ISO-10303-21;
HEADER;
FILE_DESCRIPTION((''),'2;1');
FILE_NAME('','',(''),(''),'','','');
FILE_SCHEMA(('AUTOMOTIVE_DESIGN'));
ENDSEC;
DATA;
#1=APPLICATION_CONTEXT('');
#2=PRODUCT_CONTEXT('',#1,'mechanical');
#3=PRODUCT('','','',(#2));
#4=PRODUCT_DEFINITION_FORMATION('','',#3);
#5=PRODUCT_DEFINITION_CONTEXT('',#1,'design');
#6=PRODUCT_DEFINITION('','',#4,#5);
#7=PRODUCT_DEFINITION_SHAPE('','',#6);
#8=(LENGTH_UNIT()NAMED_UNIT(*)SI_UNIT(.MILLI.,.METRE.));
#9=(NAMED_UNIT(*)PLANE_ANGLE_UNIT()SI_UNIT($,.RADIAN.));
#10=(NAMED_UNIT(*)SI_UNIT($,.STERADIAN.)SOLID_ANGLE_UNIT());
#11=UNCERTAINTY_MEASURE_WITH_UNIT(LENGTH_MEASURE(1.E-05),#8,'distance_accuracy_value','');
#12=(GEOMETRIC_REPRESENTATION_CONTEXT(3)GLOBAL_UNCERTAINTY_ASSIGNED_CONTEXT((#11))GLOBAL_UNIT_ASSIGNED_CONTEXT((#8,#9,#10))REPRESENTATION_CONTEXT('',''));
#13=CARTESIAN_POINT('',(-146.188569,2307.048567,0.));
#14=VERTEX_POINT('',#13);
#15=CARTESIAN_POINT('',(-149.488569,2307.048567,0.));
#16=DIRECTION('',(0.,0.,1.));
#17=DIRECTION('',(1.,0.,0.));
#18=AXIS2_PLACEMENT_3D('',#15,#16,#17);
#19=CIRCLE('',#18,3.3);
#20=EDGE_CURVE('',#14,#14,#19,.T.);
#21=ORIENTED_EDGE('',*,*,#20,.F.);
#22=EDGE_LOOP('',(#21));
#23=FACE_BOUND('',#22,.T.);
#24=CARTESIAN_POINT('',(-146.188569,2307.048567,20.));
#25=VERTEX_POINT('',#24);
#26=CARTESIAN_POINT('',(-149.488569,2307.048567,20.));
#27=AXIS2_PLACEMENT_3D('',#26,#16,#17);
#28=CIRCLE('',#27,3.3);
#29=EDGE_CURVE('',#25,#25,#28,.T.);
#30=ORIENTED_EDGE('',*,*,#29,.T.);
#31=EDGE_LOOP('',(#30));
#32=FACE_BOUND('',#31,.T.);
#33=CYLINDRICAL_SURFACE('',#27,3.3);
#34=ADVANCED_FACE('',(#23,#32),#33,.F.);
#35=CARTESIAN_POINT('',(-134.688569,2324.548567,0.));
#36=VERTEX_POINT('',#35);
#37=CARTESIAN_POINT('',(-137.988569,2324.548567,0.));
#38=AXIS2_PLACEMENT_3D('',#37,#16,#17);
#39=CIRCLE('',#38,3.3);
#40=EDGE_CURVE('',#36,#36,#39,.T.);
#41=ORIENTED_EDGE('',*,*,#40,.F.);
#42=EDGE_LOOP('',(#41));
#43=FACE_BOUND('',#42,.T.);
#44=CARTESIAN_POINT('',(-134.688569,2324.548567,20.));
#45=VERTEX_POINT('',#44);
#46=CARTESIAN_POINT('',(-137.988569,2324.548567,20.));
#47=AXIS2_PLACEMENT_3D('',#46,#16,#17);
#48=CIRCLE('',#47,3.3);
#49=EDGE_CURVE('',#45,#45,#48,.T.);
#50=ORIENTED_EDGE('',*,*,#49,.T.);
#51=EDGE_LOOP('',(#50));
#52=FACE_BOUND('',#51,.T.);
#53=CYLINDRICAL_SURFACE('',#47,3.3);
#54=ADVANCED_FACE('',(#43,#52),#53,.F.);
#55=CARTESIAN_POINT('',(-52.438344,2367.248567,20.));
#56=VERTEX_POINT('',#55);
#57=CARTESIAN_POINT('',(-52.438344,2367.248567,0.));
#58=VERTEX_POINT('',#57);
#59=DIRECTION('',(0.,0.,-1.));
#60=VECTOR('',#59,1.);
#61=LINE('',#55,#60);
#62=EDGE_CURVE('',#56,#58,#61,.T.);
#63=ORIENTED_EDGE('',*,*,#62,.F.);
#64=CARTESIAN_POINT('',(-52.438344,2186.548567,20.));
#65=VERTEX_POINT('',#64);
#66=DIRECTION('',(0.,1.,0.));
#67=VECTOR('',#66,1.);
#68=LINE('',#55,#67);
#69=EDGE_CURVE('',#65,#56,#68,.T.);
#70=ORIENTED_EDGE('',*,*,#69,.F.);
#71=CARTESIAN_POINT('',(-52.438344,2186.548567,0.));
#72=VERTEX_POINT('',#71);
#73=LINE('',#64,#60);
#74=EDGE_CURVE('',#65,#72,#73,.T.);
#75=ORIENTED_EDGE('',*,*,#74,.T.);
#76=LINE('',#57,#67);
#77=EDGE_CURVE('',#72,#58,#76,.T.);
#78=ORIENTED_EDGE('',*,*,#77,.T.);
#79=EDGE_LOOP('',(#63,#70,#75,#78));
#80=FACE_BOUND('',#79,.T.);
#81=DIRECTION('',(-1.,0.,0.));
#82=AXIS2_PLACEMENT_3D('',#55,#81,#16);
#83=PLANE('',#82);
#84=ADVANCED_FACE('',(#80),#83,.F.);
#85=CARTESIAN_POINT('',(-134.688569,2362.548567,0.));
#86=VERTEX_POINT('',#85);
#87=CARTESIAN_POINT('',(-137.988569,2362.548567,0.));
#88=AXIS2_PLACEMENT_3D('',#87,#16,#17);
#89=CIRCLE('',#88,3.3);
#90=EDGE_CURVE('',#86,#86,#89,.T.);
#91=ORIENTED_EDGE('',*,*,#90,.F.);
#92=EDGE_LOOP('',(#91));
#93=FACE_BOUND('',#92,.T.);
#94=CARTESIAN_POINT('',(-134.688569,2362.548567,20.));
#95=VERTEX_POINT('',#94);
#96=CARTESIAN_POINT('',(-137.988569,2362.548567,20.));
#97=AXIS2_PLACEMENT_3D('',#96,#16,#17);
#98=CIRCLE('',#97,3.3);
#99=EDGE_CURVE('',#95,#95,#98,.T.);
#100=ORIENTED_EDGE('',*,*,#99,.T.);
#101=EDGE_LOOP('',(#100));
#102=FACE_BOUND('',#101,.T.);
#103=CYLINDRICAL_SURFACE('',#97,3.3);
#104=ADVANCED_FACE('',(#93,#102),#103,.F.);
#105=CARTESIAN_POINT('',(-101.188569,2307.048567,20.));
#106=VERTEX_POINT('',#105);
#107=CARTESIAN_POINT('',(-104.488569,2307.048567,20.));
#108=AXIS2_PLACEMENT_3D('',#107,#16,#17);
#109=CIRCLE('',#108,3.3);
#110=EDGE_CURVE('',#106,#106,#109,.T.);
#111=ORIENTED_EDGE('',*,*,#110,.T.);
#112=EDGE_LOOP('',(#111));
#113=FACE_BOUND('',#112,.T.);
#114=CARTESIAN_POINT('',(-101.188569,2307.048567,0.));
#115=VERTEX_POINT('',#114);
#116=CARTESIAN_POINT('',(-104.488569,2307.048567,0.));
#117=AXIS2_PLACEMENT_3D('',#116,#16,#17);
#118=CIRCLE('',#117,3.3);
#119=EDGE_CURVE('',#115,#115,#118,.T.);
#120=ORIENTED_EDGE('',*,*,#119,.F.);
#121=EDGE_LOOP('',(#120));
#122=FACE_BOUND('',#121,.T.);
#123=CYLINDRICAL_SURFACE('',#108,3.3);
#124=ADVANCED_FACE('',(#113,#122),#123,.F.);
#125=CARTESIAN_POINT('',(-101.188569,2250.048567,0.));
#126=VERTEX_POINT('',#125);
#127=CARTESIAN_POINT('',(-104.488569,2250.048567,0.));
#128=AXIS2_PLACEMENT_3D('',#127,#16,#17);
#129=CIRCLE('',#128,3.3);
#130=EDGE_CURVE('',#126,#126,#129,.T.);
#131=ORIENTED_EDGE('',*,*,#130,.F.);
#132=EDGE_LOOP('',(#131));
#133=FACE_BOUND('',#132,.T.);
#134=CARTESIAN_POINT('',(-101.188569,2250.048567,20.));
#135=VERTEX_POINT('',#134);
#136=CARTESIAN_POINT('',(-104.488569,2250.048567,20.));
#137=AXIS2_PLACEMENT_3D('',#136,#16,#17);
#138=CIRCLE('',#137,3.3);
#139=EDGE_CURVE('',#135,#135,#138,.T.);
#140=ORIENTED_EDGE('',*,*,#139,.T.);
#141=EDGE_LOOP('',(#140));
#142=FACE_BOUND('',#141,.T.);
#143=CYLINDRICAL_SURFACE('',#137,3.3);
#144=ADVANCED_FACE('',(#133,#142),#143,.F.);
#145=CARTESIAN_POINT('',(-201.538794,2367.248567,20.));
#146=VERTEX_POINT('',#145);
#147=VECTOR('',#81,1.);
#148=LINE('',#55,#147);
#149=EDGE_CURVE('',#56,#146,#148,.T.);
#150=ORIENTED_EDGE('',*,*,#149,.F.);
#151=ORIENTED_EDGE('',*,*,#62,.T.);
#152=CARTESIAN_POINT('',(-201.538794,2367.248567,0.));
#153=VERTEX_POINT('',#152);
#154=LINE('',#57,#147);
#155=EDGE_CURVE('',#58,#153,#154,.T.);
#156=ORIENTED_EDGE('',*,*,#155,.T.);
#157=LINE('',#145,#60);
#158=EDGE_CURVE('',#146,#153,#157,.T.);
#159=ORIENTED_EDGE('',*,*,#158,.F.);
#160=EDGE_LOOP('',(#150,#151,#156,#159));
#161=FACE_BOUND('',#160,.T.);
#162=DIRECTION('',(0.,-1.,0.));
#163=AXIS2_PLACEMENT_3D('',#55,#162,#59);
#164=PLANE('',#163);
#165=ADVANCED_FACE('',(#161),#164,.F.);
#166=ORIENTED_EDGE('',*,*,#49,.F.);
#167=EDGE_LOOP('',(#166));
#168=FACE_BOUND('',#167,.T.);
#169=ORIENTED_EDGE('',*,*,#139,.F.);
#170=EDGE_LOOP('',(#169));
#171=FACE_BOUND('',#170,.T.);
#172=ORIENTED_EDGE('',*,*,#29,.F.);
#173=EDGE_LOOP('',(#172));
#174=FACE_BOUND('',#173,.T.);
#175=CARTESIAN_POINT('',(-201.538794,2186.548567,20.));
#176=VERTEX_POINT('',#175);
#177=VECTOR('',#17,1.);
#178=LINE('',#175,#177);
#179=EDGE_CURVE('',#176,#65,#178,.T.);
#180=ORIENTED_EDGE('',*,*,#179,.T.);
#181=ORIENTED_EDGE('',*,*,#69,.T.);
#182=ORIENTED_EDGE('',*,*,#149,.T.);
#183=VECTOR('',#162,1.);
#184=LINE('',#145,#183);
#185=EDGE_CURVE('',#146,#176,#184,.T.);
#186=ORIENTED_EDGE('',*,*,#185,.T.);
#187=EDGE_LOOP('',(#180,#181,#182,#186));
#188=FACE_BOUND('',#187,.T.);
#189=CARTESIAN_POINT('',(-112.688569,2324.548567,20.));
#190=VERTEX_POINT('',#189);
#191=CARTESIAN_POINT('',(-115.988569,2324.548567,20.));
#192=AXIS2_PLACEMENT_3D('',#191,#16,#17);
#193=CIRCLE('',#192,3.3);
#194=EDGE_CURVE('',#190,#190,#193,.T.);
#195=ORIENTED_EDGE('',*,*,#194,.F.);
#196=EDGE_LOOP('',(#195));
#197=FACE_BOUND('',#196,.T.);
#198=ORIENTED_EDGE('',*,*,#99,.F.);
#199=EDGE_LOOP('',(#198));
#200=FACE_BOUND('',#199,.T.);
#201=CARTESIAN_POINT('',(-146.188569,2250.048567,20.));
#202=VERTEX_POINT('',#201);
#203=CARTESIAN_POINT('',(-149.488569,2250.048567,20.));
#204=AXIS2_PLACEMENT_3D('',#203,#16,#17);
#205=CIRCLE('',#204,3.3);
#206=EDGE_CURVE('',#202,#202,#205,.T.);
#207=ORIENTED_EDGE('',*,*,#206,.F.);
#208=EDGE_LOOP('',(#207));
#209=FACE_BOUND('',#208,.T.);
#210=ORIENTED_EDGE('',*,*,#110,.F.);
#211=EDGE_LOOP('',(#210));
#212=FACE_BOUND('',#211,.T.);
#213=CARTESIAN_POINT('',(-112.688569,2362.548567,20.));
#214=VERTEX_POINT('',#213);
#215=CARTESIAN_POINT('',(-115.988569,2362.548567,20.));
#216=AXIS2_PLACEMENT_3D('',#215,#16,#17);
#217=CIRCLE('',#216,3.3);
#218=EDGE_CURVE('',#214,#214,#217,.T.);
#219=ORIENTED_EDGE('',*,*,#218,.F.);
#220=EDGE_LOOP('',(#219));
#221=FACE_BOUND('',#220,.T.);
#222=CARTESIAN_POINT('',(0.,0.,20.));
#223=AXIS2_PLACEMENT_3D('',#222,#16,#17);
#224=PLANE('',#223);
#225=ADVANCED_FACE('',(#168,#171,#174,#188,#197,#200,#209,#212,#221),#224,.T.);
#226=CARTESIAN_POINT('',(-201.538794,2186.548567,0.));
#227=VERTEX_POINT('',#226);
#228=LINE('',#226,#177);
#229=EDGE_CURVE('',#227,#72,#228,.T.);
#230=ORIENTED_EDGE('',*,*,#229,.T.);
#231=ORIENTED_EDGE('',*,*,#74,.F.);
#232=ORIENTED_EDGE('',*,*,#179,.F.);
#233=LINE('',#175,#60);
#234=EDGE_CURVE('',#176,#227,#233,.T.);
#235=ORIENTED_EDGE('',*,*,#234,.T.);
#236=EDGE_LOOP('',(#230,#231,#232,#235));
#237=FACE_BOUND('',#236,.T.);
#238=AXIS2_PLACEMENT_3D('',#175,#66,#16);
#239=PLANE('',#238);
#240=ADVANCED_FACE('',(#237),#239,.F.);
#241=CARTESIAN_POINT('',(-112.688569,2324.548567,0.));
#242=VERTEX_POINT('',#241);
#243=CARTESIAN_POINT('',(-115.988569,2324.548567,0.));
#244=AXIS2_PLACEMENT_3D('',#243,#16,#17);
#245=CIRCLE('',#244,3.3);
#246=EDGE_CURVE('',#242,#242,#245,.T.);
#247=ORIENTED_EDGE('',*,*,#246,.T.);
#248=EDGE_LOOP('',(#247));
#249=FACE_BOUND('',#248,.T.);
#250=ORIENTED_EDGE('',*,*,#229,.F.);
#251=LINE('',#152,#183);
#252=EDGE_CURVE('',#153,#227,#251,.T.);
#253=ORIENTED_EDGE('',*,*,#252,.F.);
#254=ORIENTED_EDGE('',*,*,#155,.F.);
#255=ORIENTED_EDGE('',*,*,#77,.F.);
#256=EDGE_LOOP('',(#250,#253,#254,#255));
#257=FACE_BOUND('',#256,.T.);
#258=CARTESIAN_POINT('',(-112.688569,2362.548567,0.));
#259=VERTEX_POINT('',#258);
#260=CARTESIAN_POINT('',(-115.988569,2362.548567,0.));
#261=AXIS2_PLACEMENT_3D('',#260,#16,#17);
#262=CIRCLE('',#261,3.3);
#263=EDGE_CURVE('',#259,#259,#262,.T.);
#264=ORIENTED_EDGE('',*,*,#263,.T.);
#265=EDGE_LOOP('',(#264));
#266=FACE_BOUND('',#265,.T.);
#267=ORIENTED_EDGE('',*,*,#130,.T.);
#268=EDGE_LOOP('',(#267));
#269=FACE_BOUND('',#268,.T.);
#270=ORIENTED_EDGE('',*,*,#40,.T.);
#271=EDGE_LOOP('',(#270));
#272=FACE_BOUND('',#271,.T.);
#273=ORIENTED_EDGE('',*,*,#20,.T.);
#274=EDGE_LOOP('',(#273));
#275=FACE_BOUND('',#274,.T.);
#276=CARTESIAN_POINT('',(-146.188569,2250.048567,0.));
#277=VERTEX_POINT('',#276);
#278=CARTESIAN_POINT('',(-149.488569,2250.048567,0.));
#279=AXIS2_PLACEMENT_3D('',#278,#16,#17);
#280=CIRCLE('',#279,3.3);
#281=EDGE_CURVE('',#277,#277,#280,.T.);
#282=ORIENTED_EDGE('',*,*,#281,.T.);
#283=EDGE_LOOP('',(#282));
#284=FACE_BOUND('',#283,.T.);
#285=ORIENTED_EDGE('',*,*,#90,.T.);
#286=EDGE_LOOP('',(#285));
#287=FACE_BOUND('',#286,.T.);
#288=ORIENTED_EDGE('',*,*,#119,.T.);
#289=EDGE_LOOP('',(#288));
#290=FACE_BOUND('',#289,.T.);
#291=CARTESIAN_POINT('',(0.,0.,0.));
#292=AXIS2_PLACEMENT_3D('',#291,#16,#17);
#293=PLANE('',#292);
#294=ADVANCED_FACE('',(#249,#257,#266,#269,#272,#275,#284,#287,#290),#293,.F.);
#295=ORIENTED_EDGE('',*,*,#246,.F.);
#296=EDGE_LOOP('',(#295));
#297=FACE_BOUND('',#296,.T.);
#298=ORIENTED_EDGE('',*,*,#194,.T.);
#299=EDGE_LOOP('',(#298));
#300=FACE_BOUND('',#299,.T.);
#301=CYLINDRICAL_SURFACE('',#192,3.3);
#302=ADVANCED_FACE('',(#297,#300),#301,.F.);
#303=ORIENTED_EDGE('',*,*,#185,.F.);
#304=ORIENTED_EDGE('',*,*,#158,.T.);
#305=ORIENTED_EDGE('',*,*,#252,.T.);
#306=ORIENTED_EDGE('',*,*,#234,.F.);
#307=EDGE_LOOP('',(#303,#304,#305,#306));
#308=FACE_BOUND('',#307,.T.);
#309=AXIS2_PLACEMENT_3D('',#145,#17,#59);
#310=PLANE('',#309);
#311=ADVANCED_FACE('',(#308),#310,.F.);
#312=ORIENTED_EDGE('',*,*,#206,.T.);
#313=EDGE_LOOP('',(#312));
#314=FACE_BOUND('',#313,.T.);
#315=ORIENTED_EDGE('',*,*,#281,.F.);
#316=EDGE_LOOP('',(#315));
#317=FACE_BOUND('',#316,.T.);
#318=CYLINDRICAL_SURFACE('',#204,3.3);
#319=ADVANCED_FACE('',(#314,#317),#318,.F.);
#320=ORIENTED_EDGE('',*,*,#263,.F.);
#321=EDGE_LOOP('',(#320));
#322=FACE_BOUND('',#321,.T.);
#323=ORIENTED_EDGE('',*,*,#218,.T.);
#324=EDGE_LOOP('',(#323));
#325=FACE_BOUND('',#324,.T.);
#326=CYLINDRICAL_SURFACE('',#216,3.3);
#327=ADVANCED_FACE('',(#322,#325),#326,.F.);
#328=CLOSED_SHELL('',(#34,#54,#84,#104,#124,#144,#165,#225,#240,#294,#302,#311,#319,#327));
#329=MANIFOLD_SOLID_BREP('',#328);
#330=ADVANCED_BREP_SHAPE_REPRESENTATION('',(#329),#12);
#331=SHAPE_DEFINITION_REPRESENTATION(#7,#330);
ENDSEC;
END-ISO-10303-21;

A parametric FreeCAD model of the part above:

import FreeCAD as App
import Part
import Sketcher

V = App.Vector
Q = App.Units.Quantity


def add_polygon(sketch, points):
    """Adds a closed chain of lines whose ends are joined by coincident constraints."""
    first, n = sketch.GeometryCount, len(points)
    for a, b in zip(points, points[1:] + points[:1]):
        sketch.addGeometry(Part.LineSegment(App.Vector(*a, 0), App.Vector(*b, 0)), False)
    for i in range(n):
        sketch.addConstraint(Sketcher.Constraint("Coincident", first + i, 2, first + (i + 1) % n, 1))

doc = App.newDocument("Part")
body = doc.addObject("PartDesign::Body", "Body")

# Sketch on XY plane
sketch1 = doc.addObject("Sketcher::SketchObject", "Sketch")
body.addObject(sketch1)
sketch1.AttachmentSupport = (doc.XY_Plane, [""])
sketch1.MapMode = "FlatFace"
add_polygon(sketch1, [(-202, 2367), (-202, 2187), (-52, 2187), (-52, 2367)])  # lines 0-3
sketch1.addConstraint([
    Sketcher.Constraint("Vertical", 0),
    Sketcher.Constraint("Horizontal", 1),
    Sketcher.Constraint("Vertical", 2),
    Sketcher.Constraint("Horizontal", 3),
    Sketcher.Constraint("DistanceY", 0, 2, 0, 1, Q("180.7 mm")),
    Sketcher.Constraint("DistanceX", 1, 1, 1, 2, Q("149.100451 mm")),
    Sketcher.Constraint("DistanceX", 0, 2, -1, 1, Q("201.538794 mm")),
    Sketcher.Constraint("DistanceY", -1, 1, 0, 2, Q("2186.548567 mm")),
])
pad1 = doc.addObject("PartDesign::Pad", "Pad")
body.addObject(pad1)
pad1.Profile = sketch1
pad1.Length = 20

# Sketch on XY plane
sketch2 = doc.addObject("Sketcher::SketchObject", "Sketch001")
body.addObject(sketch2)
sketch2.AttachmentSupport = (doc.XY_Plane, [""])
sketch2.MapMode = "FlatFace"
sketch2.AttachmentOffset = App.Placement(V(0, 0, 20), App.Rotation())
sketch2.addGeometry([
    Part.Circle(V(-149.5, 2307, 0), V(0, 0, 1), 3.3),  # 0
    Part.Circle(V(-104.5, 2307, 0), V(0, 0, 1), 3.3),  # 1
    Part.Circle(V(-104.5, 2250, 0), V(0, 0, 1), 3.3),  # 2
    Part.Circle(V(-149.5, 2250, 0), V(0, 0, 1), 3.3),  # 3
    Part.Circle(V(-138, 2362.5, 0), V(0, 0, 1), 3.3),  # 4
    Part.Circle(V(-138, 2324.5, 0), V(0, 0, 1), 3.3),  # 5
    Part.Circle(V(-116, 2324.5, 0), V(0, 0, 1), 3.3),  # 6
    Part.Circle(V(-116, 2362.5, 0), V(0, 0, 1), 3.3),  # 7
], False)
sketch2.addConstraint([
    Sketcher.Constraint("Equal", 0, 1),
    Sketcher.Constraint("Equal", 1, 2),
    Sketcher.Constraint("Equal", 2, 3),
    Sketcher.Constraint("Equal", 3, 4),
    Sketcher.Constraint("Equal", 4, 5),
    Sketcher.Constraint("Equal", 5, 6),
    Sketcher.Constraint("Equal", 6, 7),
    Sketcher.Constraint("Horizontal", 0, 3, 1, 3),
    Sketcher.Constraint("Horizontal", 2, 3, 3, 3),
    Sketcher.Constraint("Horizontal", 5, 3, 6, 3),
    Sketcher.Constraint("Horizontal", 4, 3, 7, 3),
    Sketcher.Constraint("Vertical", 1, 3, 2, 3),
    Sketcher.Constraint("Vertical", 0, 3, 3, 3),
    Sketcher.Constraint("Vertical", 4, 3, 5, 3),
    Sketcher.Constraint("Vertical", 6, 3, 7, 3),
    Sketcher.Constraint("Diameter", 0, Q("6.6 mm")),
    Sketcher.Constraint("DistanceX", 0, 3, 1, 3, Q("45 mm")),
    Sketcher.Constraint("DistanceY", 2, 3, 1, 3, Q("57 mm")),
    Sketcher.Constraint("DistanceY", 5, 3, 4, 3, Q("38 mm")),
    Sketcher.Constraint("DistanceX", 5, 3, 6, 3, Q("22 mm")),
    Sketcher.Constraint("DistanceX", 0, 3, 4, 3, Q("11.5 mm")),
    Sketcher.Constraint("DistanceY", 0, 3, 4, 3, Q("55.5 mm")),
    Sketcher.Constraint("DistanceX", 0, 3, -1, 1, Q("149.488569 mm")),
    Sketcher.Constraint("DistanceY", -1, 1, 0, 3, Q("2307.048567 mm")),
])
doc.recompute()
hole = doc.addObject("PartDesign::Hole", "Hole")
body.addObject(hole)
hole.Profile = sketch2
hole.ThreadType = "None"
hole.Diameter = 6.6
hole.DepthType = "Dimension"
hole.Depth = 36.6
hole.DrillPoint = "Angled"
hole.DrillPointAngle = 118

doc.recompute()
